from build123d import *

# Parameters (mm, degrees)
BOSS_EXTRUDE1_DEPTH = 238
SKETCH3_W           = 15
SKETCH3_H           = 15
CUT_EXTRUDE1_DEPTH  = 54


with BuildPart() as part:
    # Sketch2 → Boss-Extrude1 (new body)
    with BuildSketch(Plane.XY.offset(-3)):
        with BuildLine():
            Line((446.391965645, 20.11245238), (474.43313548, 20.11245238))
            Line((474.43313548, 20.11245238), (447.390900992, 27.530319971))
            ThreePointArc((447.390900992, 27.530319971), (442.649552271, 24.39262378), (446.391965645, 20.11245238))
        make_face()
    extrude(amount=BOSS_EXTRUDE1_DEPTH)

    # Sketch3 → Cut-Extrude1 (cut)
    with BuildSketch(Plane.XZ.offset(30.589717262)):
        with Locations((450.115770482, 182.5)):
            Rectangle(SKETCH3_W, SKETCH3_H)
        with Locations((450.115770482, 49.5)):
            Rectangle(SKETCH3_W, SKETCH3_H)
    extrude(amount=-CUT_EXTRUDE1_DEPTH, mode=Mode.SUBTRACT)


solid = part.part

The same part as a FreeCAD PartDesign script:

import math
import FreeCAD as App
import Part
import Sketcher
from FreeCAD import Vector


def add_polygon(sketch, points):
    """Adds a closed chain of lines whose ends are joined by coincident constraints."""
    first, n = sketch.GeometryCount, len(points)
    for a, b in zip(points, points[1:] + points[:1]):
        sketch.addGeometry(Part.LineSegment(App.Vector(*a, 0), App.Vector(*b, 0)), False)
    for i in range(n):
        sketch.addConstraint(Sketcher.Constraint("Coincident", first + i, 2, first + (i + 1) % n, 1))

doc = App.newDocument("Part")
params = doc.addObject("Spreadsheet::Sheet", "Params")
for row, (alias, value) in enumerate([
    ("pad1_length", "238 mm"),
    ("sketch2_width", "15 mm"),
    ("pocket1_length", "54 mm"),
], start=1):
    params.set(f"A{row}", alias)
    params.set(f"B{row}", "=" + value)
    params.setAlias(f"B{row}", alias)

body = doc.addObject("PartDesign::Body", "Body")

# Sketch on XY plane
sketch1 = doc.addObject("Sketcher::SketchObject", "Sketch")
body.addObject(sketch1)
sketch1.AttachmentSupport = (doc.XY_Plane, [""])
sketch1.MapMode = "FlatFace"
sketch1.AttachmentOffset = App.Placement(Vector(0, 0, -3), App.Rotation())
sketch1.addGeometry([
    Part.LineSegment(Vector(446.391966, 20.112452, 0), Vector(474.433135, 20.112452, 0)),
    Part.LineSegment(Vector(474.433135, 20.112452, 0), Vector(447.390901, 27.53032, 0)),
    Part.ArcOfCircle(Part.Circle(Vector(446.391966, 23.888648, 0), Vector(0, 0, 1), 3.776195), math.radians(74.660683), math.radians(270)),
], False)
sketch1.addConstraint([
    Sketcher.Constraint("Coincident", 0, 2, 1, 1),
    Sketcher.Constraint("Tangent", 1, 2, 2, 1),
    Sketcher.Constraint("Tangent", 2, 2, 0, 1),
    Sketcher.Constraint("Horizontal", 0),
    Sketcher.Constraint("Radius", 2, 3.776195),
    Sketcher.Constraint("DistanceX", 0, 1, 0, 2, 28.04117),
    Sketcher.Constraint("DistanceX", -1, 1, 1, 2, 447.390901),
    Sketcher.Constraint("DistanceY", -1, 1, 1, 2, 27.53032),
])
pad1 = doc.addObject("PartDesign::Pad", "Pad")
body.addObject(pad1)
pad1.Profile = sketch1
pad1.setExpression("Length", "Params.pad1_length")

# Sketch on XZ plane
sketch2 = doc.addObject("Sketcher::SketchObject", "Sketch001")
body.addObject(sketch2)
sketch2.AttachmentSupport = (doc.XZ_Plane, [""])
sketch2.MapMode = "FlatFace"
sketch2.AttachmentOffset = App.Placement(Vector(0, 0, 30.589717), App.Rotation())
add_polygon(sketch2, [(442.61577, 190), (442.61577, 175), (457.61577, 175), (457.61577, 190)])  # lines 0-3
add_polygon(sketch2, [(442.61577, 57), (442.61577, 42), (457.61577, 42), (457.61577, 57)])  # lines 4-7
sketch2.addConstraint([
    Sketcher.Constraint("Vertical", 0),
    Sketcher.Constraint("Horizontal", 1),
    Sketcher.Constraint("Vertical", 2),
    Sketcher.Constraint("Horizontal", 3),
    Sketcher.Constraint("Vertical", 4),
    Sketcher.Constraint("Horizontal", 5),
    Sketcher.Constraint("Vertical", 6),
    Sketcher.Constraint("Horizontal", 7),
    Sketcher.Constraint("Vertical", 3, 2, 4, 2),
    Sketcher.Constraint("Vertical", 2, 2, 5, 2),
    Sketcher.Constraint("Equal", 7, 0),
    Sketcher.Constraint("Equal", 2, 4),
    Sketcher.Constraint("DistanceX", 1, 1, 1, 2, 15.0),
    Sketcher.Constraint("DistanceY", -1, 1, 0, 2, 175.0),
    Sketcher.Constraint("DistanceY", -1, 1, 4, 2, 42.0),
    Sketcher.Constraint("DistanceX", -1, 1, 0, 2, 442.61577),
])
sketch2.setExpression("Constraints[20]", "Params.sketch2_width")
pocket1 = doc.addObject("PartDesign::Pocket", "Pocket")
body.addObject(pocket1)
pocket1.Profile = sketch2
pocket1.setExpression("Length", "Params.pocket1_length")

doc.recompute()
